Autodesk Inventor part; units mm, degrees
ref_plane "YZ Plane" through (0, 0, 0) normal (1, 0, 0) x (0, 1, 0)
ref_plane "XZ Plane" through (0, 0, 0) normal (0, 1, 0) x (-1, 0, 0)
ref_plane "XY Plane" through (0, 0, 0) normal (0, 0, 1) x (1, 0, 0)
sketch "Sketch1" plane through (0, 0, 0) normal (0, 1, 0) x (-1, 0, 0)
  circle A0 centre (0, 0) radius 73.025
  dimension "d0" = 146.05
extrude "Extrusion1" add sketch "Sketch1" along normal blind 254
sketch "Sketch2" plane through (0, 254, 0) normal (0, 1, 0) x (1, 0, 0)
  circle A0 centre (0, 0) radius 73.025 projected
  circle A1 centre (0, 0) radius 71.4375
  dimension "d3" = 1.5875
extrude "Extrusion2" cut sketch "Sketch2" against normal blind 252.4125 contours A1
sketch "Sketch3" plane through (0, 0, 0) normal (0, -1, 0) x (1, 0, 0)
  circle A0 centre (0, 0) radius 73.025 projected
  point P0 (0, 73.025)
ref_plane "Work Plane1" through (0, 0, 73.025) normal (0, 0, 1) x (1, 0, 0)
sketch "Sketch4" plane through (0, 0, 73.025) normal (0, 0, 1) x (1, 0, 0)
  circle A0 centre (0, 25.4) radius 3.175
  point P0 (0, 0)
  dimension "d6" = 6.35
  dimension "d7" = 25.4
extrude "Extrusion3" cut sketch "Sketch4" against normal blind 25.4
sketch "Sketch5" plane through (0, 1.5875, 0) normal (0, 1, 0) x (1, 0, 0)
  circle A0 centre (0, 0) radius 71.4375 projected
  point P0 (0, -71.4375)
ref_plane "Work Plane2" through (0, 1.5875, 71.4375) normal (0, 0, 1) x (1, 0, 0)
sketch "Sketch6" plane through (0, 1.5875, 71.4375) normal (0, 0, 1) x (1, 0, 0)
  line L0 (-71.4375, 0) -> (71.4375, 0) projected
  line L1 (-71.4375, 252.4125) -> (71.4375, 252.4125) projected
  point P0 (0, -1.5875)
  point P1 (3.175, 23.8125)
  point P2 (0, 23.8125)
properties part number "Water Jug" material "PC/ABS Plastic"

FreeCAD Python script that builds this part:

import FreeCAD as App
import Part
import Sketcher
from FreeCAD import Vector
Q = App.Units.Quantity

doc = App.newDocument("Part")
params = doc.addObject("Spreadsheet::Sheet", "Params")
for row, (alias, value) in enumerate([
    ("sketch1_diameter", "5.75 in"),
    ("pad1_length", "10 in"),
    ("sketch2_diameter", "5.625 in"),
    ("pocket1_length", "9.9375 in"),
    ("sketch3_diameter", "0.25 in"),
    ("pocket2_length", "1 in"),
], start=1):
    params.set(f"A{row}", alias)
    params.set(f"B{row}", "=" + value)
    params.setAlias(f"B{row}", alias)

body = doc.addObject("PartDesign::Body", "Body")

sketch1 = doc.addObject("Sketcher::SketchObject", "Sketch")
body.addObject(sketch1)
sketch1.AttachmentSupport = (doc.XZ_Plane, [""])
sketch1.MapMode = "FlatFace"
sketch1.addGeometry(Part.Circle(Vector(0, 0, 0), Vector(0, 0, 1), 73), False)
sketch1.addConstraint([
    Sketcher.Constraint("Coincident", 0, 3, -1, 1),
    Sketcher.Constraint("Diameter", 0, Q("5.75 in")),
])
sketch1.setExpression("Constraints[1]", "Params.sketch1_diameter")
pad1 = doc.addObject("PartDesign::Pad", "Pad")
body.addObject(pad1)
pad1.Profile = sketch1
pad1.setExpression("Length", "Params.pad1_length")
pad1.Reversed = True

sketch2 = doc.addObject("Sketcher::SketchObject", "Sketch001")
body.addObject(sketch2)
sketch2.AttachmentSupport = (doc.XZ_Plane, [""])
sketch2.MapMode = "FlatFace"
sketch2.AttachmentOffset = App.Placement(Vector(0, 0, -10 * 25.4), App.Rotation())
sketch2.addGeometry(Part.Circle(Vector(0, 0, 0), Vector(0, 0, 1), 71), False)
sketch2.addConstraint([
    Sketcher.Constraint("Coincident", 0, 3, -1, 1),
    Sketcher.Constraint("Diameter", 0, Q("5.625 in")),
])
sketch2.setExpression("Constraints[1]", "Params.sketch2_diameter")
pocket1 = doc.addObject("PartDesign::Pocket", "Pocket")
body.addObject(pocket1)
pocket1.Profile = sketch2
pocket1.setExpression("Length", "Params.pocket1_length")
pocket1.Reversed = True

sketch3 = doc.addObject("Sketcher::SketchObject", "Sketch002")
body.addObject(sketch3)
sketch3.AttachmentSupport = (doc.XY_Plane, [""])
sketch3.MapMode = "FlatFace"
sketch3.AttachmentOffset = App.Placement(Vector(0, 0, 2.875 * 25.4), App.Rotation())
sketch3.addGeometry(Part.Circle(Vector(0, 25.4, 0), Vector(0, 0, 1), 3.2), False)
sketch3.addConstraint([
    Sketcher.Constraint("PointOnObject", 0, 3, -2),
    Sketcher.Constraint("Diameter", 0, Q("0.25 in")),
    Sketcher.Constraint("DistanceY", -1, 1, 0, 3, Q("1 in")),
])
sketch3.setExpression("Constraints[1]", "Params.sketch3_diameter")
pocket2 = doc.addObject("PartDesign::Pocket", "Pocket001")
body.addObject(pocket2)
pocket2.Profile = sketch3
pocket2.setExpression("Length", "Params.pocket2_length")

doc.recompute()
